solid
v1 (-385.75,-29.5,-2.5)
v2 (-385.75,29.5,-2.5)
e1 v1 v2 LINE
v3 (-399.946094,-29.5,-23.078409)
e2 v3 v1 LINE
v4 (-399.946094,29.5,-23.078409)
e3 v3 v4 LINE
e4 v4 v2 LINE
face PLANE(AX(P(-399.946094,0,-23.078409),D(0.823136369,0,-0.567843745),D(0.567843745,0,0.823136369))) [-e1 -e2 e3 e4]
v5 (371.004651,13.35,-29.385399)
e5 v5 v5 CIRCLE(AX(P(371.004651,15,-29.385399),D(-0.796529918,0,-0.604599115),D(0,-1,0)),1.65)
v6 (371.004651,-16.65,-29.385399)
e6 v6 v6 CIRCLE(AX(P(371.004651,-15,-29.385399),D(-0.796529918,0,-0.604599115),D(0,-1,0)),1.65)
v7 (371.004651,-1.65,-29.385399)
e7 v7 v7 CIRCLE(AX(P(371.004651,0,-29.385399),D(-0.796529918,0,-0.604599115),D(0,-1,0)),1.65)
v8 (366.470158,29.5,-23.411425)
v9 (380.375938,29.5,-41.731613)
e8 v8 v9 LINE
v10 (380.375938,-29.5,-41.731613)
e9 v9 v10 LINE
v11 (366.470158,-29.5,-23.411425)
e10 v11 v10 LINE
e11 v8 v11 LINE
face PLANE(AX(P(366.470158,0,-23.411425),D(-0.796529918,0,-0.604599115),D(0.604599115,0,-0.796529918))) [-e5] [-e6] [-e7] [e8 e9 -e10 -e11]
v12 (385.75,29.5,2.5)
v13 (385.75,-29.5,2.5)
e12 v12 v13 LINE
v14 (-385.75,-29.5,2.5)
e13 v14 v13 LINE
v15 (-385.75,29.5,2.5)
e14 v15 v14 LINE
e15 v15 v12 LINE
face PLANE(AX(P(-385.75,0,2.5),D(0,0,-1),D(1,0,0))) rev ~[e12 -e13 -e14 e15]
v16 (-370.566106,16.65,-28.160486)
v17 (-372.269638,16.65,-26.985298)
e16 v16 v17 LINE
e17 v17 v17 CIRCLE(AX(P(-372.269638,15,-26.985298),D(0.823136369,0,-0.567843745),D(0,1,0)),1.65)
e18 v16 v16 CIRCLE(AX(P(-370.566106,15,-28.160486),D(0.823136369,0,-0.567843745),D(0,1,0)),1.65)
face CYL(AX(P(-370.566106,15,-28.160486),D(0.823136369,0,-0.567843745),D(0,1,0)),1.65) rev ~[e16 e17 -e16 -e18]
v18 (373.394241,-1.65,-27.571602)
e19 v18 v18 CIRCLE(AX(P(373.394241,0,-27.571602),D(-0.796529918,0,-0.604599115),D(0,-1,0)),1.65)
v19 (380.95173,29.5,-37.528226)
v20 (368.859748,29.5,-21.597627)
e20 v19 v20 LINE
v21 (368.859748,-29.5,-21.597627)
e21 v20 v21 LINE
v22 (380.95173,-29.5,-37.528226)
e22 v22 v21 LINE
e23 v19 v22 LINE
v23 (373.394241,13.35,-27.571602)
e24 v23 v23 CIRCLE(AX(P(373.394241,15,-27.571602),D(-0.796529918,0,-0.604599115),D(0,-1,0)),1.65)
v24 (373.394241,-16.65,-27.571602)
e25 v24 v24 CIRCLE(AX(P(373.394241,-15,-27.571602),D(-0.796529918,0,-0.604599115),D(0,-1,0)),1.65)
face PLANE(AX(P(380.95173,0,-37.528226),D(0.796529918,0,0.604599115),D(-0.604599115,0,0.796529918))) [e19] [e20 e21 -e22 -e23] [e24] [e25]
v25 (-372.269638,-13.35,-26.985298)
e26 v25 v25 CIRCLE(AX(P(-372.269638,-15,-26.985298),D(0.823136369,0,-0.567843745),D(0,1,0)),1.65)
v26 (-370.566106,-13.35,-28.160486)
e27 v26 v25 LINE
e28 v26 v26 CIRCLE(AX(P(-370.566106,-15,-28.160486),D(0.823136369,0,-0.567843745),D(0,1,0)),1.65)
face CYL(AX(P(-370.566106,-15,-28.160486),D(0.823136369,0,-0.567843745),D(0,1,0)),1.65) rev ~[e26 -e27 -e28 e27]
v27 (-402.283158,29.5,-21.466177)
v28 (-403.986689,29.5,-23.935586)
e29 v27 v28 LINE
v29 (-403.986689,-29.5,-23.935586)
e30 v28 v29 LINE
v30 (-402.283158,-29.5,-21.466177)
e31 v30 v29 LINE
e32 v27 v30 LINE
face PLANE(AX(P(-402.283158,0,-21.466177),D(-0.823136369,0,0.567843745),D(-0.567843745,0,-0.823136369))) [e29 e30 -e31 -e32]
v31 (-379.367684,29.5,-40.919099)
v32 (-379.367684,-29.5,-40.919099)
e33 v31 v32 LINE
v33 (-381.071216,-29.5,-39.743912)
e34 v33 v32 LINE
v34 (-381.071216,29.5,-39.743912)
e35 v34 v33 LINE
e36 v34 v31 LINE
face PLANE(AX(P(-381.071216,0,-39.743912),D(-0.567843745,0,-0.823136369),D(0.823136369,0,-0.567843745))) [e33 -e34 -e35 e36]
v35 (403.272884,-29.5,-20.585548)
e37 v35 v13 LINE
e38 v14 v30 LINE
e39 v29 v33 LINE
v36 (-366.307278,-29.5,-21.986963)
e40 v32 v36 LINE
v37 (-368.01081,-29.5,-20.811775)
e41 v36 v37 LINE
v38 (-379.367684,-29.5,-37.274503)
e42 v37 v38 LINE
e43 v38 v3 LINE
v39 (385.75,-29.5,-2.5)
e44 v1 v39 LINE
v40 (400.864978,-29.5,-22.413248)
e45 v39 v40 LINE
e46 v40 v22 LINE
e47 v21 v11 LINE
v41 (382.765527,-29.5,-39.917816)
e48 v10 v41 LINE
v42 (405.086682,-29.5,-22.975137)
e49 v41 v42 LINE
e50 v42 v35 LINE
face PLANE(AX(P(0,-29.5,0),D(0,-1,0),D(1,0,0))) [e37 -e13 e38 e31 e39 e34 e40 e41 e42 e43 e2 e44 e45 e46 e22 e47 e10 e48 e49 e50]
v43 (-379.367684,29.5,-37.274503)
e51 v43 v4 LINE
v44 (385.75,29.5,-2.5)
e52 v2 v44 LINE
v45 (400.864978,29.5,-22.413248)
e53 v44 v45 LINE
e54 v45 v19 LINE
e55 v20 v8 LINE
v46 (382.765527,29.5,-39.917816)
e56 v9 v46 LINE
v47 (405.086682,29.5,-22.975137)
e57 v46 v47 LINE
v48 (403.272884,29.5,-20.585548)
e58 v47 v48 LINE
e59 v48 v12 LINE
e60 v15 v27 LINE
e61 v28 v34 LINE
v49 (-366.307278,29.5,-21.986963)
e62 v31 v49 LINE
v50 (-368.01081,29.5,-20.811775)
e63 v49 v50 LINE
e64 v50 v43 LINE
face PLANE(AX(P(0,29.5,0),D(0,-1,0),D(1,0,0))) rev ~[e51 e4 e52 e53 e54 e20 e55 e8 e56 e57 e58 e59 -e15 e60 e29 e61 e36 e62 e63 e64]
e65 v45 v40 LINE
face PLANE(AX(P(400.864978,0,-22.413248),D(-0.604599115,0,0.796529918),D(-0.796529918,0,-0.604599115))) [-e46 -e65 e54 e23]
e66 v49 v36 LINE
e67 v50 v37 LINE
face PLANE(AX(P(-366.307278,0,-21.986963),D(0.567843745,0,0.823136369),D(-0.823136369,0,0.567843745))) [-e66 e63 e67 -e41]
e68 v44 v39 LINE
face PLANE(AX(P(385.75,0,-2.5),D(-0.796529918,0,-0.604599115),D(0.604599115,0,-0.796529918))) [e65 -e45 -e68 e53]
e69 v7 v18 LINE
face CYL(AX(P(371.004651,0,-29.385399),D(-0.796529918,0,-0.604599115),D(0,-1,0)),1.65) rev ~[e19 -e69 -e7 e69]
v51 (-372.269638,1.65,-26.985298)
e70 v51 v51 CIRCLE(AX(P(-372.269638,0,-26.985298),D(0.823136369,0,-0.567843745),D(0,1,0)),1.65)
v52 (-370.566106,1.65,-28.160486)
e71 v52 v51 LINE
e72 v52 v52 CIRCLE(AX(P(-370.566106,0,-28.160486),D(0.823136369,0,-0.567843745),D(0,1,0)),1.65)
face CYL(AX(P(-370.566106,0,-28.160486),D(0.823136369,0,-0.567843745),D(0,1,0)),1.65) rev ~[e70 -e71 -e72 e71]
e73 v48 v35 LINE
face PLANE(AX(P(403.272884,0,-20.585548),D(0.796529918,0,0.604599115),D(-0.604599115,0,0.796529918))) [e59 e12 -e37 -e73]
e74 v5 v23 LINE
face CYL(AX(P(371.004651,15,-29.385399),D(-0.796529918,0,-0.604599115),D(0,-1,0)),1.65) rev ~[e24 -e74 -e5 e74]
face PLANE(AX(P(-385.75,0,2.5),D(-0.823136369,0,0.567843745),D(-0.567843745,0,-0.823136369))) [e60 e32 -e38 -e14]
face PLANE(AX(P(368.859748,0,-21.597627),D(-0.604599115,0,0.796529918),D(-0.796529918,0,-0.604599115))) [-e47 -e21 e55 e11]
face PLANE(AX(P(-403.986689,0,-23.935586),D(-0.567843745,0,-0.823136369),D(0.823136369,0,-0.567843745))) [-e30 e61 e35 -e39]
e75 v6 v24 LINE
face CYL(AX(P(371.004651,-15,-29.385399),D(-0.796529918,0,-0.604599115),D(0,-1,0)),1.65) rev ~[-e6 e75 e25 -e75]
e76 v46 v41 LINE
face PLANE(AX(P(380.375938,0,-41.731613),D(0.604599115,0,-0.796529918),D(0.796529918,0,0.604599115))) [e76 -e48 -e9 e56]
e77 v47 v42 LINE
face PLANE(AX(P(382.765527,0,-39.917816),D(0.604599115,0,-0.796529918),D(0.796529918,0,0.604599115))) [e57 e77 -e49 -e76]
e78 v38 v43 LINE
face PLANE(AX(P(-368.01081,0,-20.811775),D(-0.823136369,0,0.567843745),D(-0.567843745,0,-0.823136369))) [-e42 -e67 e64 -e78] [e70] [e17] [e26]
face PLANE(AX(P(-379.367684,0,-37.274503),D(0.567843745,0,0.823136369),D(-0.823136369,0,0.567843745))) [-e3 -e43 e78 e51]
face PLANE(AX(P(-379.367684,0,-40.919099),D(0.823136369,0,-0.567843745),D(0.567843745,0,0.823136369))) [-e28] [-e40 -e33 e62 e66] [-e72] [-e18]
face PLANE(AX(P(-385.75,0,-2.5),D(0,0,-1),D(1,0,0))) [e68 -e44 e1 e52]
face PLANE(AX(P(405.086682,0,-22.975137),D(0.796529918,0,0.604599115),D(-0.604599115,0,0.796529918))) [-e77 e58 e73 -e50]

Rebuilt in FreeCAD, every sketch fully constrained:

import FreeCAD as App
import Part
import Sketcher
from FreeCAD import Vector
Q = App.Units.Quantity


def add_polygon(sketch, points):
    """Adds a closed chain of lines whose ends are joined by coincident constraints."""
    first, n = sketch.GeometryCount, len(points)
    for a, b in zip(points, points[1:] + points[:1]):
        sketch.addGeometry(Part.LineSegment(App.Vector(*a, 0), App.Vector(*b, 0)), False)
    for i in range(n):
        sketch.addConstraint(Sketcher.Constraint("Coincident", first + i, 2, first + (i + 1) % n, 1))

doc = App.newDocument("Part")
body = doc.addObject("PartDesign::Body", "Body")

# Sketch on XZ plane
sketch1 = doc.addObject("Sketcher::SketchObject", "Sketch")
body.addObject(sketch1)
sketch1.AttachmentSupport = (doc.XZ_Plane, [""])
sketch1.MapMode = "FlatFace"
add_polygon(sketch1, [(-385.8, -2.5), (385.8, -2.5), (400.9, -22.4), (381, -37.5), (368.9, -21.6), (366.5, -23.4), (380.4, -41.7), (382.8, -39.9), (405.1, -23), (403.3, -20.6), (385.8, 2.5), (-385.8, 2.5), (-402.3, -21.5), (-404, -23.9), (-381.1, -39.7), (-379.4, -40.9), (-366.3, -22), (-368, -20.8), (-379.4, -37.3), (-399.9, -23.1)])  # lines 0-19
sketch1.addConstraint(Sketcher.Constraint("Horizontal", 0))
sketch1.addConstraint(Sketcher.Constraint("Horizontal", 10))
sketch1.addConstraint(Sketcher.Constraint("Symmetric", 0, 2, 10, 2, -1, 1))
sketch1.addConstraint(Sketcher.Constraint("Perpendicular", 1, 2))
sketch1.addConstraint(Sketcher.Constraint("Perpendicular", 2, 3))
sketch1.addConstraint(Sketcher.Constraint("Perpendicular", 3, 4))
sketch1.addConstraint(Sketcher.Constraint("Perpendicular", 4, 5))
sketch1.addConstraint(Sketcher.Constraint("Perpendicular", 5, 6))
sketch1.addConstraint(Sketcher.Constraint("Parallel", 6, 7))
sketch1.addConstraint(Sketcher.Constraint("Perpendicular", 7, 8))
sketch1.addConstraint(Sketcher.Constraint("Parallel", 8, 9))
sketch1.addConstraint(Sketcher.Constraint("Parallel", 11, 12))
sketch1.addConstraint(Sketcher.Constraint("Perpendicular", 12, 13))
sketch1.addConstraint(Sketcher.Constraint("Parallel", 13, 14))
sketch1.addConstraint(Sketcher.Constraint("Perpendicular", 14, 15))
sketch1.addConstraint(Sketcher.Constraint("Perpendicular", 15, 16))
sketch1.addConstraint(Sketcher.Constraint("Perpendicular", 16, 17))
sketch1.addConstraint(Sketcher.Constraint("Perpendicular", 17, 18))
sketch1.addConstraint(Sketcher.Constraint("Perpendicular", 18, 19))
sketch1.addConstraint(Sketcher.Constraint("Vertical", 0, 2, 9, 2))
sketch1.addConstraint(Sketcher.Constraint("Vertical", 14, 2, 17, 2))
sketch1.addConstraint(Sketcher.Constraint("Vertical", 10, 2, 19, 2))
sketch1.addConstraint(Sketcher.Constraint("Equal", 1, 2))
sketch1.addConstraint(Sketcher.Constraint("Equal", 4, 6))
sketch1.addConstraint(Sketcher.Constraint("Equal", 6, 8))
sketch1.addConstraint(Sketcher.Constraint("Equal", 8, 12))
sketch1.addConstraint(Sketcher.Constraint("Equal", 5, 15))
sketch1.addConstraint(Sketcher.Constraint("Equal", 14, 16))
sketch1.addConstraint(Sketcher.Constraint("Equal", 3, 17))
sketch1.addConstraint(Sketcher.Constraint("Equal", 2, 18))
sketch1.addConstraint(Sketcher.Constraint("Equal", 18, 19))
sketch1.addConstraint(Sketcher.Constraint("Distance", 1, 25.0))
sketch1.addConstraint(Sketcher.Constraint("Distance", 3, 20.0))
sketch1.addConstraint(Sketcher.Constraint("Distance", 4, 3.0))
sketch1.addConstraint(Sketcher.Constraint("Distance", 5, 23.0))
sketch1.addConstraint(Sketcher.Constraint("DistanceX", 0, 1, 0, 2, 771.5))
sketch1.addConstraint(Sketcher.Constraint("Angle", 1, Q("-52.8 deg")))
sketch1.addConstraint(Sketcher.Constraint("Angle", 11, Q("-124.6 deg")))
sketch1.addConstraint(Sketcher.Constraint("DistanceY", 0, 2, 9, 2, 5.0))
pad1 = doc.addObject("PartDesign::Pad", "Pad")
body.addObject(pad1)
pad1.Profile = sketch1
pad1.Length = 59
pad1.Midplane = True

# Sketch on an angled plane
sketch2 = doc.addObject("Sketcher::SketchObject", "Sketch001")
body.addObject(sketch2)
sketch2.Placement = App.Placement(Vector(-237.915783, 0, 164.127105), App.Rotation(Vector(0, 1, 0), Vector(0.567843745, 0, 0.823136369), Vector(0.823136369, 0, -0.567843745), "ZXY"))
sketch2.addGeometry(Part.Circle(Vector(-15, -233.6, 0), Vector(0, 0, 1), 1.6), False)
sketch2.addGeometry(Part.Circle(Vector(0, -233.6, 0), Vector(0, 0, 1), 1.6), False)
sketch2.addGeometry(Part.Circle(Vector(15, -233.6, 0), Vector(0, 0, 1), 1.6), False)
sketch2.addConstraint(Sketcher.Constraint("Equal", 0, 1))
sketch2.addConstraint(Sketcher.Constraint("Equal", 1, 2))
sketch2.addConstraint(Sketcher.Constraint("Symmetric", 0, 3, 2, 3, -2))
sketch2.addConstraint(Sketcher.Constraint("PointOnObject", 1, 3, -2))
sketch2.addConstraint(Sketcher.Constraint("Horizontal", 0, 3, 1, 3))
sketch2.addConstraint(Sketcher.Constraint("Diameter", 0, 3.3))
sketch2.addConstraint(Sketcher.Constraint("DistanceX", 0, 3, -1, 1, 15.0))
sketch2.addConstraint(Sketcher.Constraint("DistanceY", 0, 3, -1, 1, 233.603566))
pocket1 = doc.addObject("PartDesign::Pocket", "Pocket")
body.addObject(pocket1)
pocket1.Profile = sketch2
pocket1.Length = 3

# Sketch on an angled plane
sketch3 = doc.addObject("Sketcher::SketchObject", "Sketch002")
body.addObject(sketch3)
sketch3.Placement = App.Placement(Vector(221.236119, 0, 167.927355), App.Rotation(Vector(0, -1, 0), Vector(-0.604599115, 0, 0.796529918), Vector(-0.796529918, 0, -0.604599115), "ZXY"))
sketch3.addGeometry(Part.Circle(Vector(0, -247.7, 0), Vector(0, 0, 1), 1.6), False)
sketch3.addGeometry(Part.Circle(Vector(-15, -247.7, 0), Vector(0, 0, 1), 1.6), False)
sketch3.addGeometry(Part.Circle(Vector(15, -247.7, 0), Vector(0, 0, 1), 1.6), False)
sketch3.addConstraint(Sketcher.Constraint("Equal", 0, 1))
sketch3.addConstraint(Sketcher.Constraint("Equal", 1, 2))
sketch3.addConstraint(Sketcher.Constraint("Symmetric", 1, 3, 2, 3, -2))
sketch3.addConstraint(Sketcher.Constraint("PointOnObject", 0, 3, -2))
sketch3.addConstraint(Sketcher.Constraint("Horizontal", 0, 3, 1, 3))
sketch3.addConstraint(Sketcher.Constraint("Diameter", 0, 3.3))
sketch3.addConstraint(Sketcher.Constraint("DistanceX", 1, 3, -1, 1, 15.0))
sketch3.addConstraint(Sketcher.Constraint("DistanceY", 0, 3, -1, 1, 247.715433))
pocket2 = doc.addObject("PartDesign::Pocket", "Pocket001")
body.addObject(pocket2)
pocket2.Profile = sketch3
pocket2.Length = 25

doc.recompute()
